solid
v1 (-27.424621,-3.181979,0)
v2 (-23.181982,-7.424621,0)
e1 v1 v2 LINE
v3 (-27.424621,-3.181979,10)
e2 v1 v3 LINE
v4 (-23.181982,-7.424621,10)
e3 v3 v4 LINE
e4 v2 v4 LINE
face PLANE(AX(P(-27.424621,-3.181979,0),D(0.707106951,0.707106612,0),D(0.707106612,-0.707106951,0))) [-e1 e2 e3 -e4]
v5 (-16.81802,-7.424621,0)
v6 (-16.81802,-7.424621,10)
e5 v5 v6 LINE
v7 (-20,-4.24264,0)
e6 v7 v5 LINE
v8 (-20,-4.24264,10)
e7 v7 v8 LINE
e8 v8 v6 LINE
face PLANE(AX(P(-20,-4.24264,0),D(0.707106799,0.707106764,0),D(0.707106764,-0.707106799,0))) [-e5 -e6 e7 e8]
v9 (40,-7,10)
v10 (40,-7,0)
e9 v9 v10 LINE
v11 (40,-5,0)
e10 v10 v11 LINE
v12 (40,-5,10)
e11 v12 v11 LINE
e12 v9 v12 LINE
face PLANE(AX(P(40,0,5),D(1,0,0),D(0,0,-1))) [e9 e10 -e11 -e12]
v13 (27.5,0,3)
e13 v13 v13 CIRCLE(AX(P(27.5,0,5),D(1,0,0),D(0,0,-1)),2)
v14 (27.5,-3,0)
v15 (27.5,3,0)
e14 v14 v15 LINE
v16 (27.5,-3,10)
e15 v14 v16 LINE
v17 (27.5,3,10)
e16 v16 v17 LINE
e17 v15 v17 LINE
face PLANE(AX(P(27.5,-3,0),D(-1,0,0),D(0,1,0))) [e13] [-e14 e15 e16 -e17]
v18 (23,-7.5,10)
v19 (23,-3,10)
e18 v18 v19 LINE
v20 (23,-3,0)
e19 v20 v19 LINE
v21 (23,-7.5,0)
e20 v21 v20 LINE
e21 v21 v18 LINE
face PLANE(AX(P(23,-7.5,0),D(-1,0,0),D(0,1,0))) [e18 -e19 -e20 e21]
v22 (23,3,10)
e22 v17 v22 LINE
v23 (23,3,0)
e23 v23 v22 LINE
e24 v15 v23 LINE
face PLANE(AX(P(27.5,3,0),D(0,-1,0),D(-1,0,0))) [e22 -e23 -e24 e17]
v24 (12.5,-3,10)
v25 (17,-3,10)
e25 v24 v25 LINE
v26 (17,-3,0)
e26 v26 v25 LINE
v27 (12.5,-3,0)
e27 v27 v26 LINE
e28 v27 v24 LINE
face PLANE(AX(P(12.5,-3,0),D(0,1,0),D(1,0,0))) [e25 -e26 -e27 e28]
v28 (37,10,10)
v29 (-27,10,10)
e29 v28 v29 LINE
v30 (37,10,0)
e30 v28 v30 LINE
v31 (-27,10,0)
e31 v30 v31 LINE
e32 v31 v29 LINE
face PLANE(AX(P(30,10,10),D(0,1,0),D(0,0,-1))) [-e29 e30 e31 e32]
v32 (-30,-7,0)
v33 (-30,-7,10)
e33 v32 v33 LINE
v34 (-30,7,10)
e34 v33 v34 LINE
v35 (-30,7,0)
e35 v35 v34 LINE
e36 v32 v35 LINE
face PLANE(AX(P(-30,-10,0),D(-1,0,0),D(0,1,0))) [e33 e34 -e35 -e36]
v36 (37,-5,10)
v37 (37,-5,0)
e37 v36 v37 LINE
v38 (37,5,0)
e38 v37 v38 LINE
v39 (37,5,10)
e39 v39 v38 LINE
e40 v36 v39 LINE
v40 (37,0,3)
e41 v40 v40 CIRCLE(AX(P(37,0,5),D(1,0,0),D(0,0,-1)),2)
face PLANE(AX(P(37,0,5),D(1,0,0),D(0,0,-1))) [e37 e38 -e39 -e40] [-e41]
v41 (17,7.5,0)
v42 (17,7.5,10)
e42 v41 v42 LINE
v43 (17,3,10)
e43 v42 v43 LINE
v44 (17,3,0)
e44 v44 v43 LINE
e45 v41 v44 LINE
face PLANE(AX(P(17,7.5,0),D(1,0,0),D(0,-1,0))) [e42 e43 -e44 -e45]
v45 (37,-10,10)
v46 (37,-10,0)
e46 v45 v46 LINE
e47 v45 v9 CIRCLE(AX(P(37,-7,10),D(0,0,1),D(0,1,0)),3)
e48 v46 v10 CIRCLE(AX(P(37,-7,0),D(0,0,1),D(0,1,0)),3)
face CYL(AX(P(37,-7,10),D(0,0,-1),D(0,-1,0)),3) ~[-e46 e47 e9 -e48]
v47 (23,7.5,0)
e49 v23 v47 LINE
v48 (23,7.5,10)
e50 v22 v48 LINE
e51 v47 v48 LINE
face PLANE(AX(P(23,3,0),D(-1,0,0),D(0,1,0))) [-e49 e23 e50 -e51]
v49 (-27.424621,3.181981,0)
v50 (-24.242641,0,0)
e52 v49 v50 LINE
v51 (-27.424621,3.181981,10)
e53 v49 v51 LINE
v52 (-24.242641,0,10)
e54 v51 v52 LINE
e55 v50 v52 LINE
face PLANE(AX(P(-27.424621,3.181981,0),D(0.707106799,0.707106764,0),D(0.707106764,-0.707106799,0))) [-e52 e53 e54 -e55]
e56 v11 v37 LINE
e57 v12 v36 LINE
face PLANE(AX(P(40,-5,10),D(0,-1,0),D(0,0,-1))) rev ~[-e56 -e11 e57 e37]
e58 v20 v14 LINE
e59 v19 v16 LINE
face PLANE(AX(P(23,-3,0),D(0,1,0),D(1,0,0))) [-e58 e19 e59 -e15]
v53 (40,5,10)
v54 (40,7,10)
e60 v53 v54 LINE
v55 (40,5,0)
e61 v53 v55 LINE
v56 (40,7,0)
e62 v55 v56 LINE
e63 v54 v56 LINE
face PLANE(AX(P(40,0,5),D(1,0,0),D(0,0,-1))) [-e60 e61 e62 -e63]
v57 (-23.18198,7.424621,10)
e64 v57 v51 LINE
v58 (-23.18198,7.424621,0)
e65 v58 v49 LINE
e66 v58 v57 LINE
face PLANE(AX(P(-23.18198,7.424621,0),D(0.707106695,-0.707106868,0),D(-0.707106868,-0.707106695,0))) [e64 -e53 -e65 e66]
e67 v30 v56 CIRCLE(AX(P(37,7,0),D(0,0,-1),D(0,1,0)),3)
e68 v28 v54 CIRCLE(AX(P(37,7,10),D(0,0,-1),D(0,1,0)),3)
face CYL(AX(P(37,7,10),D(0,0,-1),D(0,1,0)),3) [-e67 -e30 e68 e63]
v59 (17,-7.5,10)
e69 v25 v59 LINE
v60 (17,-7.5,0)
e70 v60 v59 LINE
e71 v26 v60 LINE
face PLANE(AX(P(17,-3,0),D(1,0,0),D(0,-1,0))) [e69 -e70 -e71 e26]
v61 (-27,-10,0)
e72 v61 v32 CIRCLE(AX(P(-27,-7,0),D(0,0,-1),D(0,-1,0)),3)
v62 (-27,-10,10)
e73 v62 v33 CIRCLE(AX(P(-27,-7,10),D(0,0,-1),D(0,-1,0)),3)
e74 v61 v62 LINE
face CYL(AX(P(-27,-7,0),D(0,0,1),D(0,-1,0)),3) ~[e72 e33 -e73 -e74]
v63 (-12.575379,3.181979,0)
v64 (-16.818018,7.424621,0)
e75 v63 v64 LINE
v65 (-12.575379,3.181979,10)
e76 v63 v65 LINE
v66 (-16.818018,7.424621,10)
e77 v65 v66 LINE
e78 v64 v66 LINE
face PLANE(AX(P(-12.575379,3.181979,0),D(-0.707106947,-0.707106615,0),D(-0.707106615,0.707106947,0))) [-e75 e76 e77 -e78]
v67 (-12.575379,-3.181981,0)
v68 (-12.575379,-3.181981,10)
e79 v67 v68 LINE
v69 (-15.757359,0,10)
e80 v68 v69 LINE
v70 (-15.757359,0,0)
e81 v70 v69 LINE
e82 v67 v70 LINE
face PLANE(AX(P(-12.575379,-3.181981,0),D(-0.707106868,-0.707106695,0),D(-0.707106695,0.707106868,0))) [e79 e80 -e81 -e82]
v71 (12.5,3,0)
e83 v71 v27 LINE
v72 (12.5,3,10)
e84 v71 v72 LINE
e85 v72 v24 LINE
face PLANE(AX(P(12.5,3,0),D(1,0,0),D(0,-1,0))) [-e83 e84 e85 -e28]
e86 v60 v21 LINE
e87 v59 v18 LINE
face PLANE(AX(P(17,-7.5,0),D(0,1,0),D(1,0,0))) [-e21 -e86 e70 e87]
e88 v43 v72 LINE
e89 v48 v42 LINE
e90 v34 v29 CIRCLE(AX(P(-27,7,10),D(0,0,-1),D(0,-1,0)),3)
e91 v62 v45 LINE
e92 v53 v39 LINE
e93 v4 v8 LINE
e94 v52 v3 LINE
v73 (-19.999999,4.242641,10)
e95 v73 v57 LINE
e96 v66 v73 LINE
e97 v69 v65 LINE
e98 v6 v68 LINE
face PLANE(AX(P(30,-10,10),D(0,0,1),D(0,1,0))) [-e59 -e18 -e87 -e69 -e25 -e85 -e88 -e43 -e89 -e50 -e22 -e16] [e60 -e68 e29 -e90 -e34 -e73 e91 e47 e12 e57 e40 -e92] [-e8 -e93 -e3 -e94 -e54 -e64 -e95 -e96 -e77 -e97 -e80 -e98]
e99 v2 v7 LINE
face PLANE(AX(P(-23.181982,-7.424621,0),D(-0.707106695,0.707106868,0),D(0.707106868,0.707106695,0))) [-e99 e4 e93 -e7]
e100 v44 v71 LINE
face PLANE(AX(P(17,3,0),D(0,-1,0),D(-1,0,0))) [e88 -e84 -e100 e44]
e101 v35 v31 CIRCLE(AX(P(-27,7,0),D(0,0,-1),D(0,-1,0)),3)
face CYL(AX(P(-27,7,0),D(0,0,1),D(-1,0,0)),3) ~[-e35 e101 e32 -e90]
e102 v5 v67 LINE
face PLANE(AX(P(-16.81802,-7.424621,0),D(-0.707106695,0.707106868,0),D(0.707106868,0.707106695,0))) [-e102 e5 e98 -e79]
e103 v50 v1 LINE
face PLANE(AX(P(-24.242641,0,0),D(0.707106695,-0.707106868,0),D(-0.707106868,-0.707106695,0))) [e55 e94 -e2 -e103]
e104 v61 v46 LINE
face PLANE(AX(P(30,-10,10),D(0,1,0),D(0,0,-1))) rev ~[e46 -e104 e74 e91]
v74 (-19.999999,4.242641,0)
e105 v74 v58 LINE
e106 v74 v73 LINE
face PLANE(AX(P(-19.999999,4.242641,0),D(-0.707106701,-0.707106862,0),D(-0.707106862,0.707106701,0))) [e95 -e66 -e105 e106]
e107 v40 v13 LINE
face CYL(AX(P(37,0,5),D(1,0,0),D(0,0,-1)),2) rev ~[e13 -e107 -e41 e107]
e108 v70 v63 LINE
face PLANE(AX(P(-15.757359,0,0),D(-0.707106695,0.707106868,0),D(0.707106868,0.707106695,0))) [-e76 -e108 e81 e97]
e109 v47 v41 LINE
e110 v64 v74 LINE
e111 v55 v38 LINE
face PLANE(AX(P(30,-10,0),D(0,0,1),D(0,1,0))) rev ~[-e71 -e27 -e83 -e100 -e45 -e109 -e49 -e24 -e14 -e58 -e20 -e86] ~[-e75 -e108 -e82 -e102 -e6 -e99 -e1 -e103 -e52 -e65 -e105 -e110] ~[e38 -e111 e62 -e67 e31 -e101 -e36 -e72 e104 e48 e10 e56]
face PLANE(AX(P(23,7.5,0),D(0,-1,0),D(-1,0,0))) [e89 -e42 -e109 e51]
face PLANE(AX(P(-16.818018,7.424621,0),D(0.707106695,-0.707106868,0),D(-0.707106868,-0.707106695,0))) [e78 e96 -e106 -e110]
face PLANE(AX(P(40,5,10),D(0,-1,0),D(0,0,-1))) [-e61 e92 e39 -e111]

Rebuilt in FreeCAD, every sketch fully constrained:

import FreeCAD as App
import Part
import Sketcher

V = App.Vector
Q = App.Units.Quantity


def edges_at(feature, points):
    """Names of the edges that pass closest to the given points."""
    edges = feature.Shape.Edges
    near = lambda p: min(range(len(edges)), key=lambda i: edges[i].distToShape(Part.Vertex(*p))[0])
    return sorted({f"Edge{near(p) + 1}" for p in points})

doc = App.newDocument("Part")
params = doc.addObject("Spreadsheet::Sheet", "Params")
for row, (alias, value) in enumerate([
    ("sketch1_width", "60 mm"),
    ("sketch1_width2", "6 mm"),
    ("sketch1_height", "20 mm"),
    ("sketch1_length", "6 mm"),
    ("sketch1_width3", "4.5 mm"),
    ("pad1_length", "10 mm"),
    ("sketch2_width", "20 mm"),
    ("sketch2_height", "10 mm"),
    ("pad2_length", "10 mm"),
    ("sketch3_width", "10 mm"),
    ("pocket1_length", "3 mm"),
    ("sketch4_diameter", "4 mm"),
    ("pocket2_length", "14 mm"),
    ("fillet_radius", "3 mm"),
], start=1):
    params.set(f"A{row}", alias)
    params.set(f"B{row}", "=" + value)
    params.setAlias(f"B{row}", alias)

body = doc.addObject("PartDesign::Body", "Body")

# Sketch on XY plane
sketch1 = body.newObject("Sketcher::SketchObject", "Sketch")
sketch1.AttachmentSupport = (doc.getObject("XY_Plane"), [""])
sketch1.MapMode = "FlatFace"
sketch1.addGeometry(Part.LineSegment(V(-30, 10, 0), V(-30, -10, 0)), False)
sketch1.addGeometry(Part.LineSegment(V(-30, -10, 0), V(30, -10, 0)), False)
sketch1.addGeometry(Part.LineSegment(V(30, -10, 0), V(30, 10, 0)), False)
sketch1.addGeometry(Part.LineSegment(V(30, 10, 0), V(-30, 10, 0)), False)
sketch1.addGeometry(Part.LineSegment(V(-27.424621, 3.181981, 0), V(-23.18198, 7.424621, 0)), False)
sketch1.addGeometry(Part.LineSegment(V(-23.18198, 7.424621, 0), V(-19.999999, 4.242641, 0)), False)
sketch1.addGeometry(Part.LineSegment(V(-19.999999, 4.242641, 0), V(-16.818018, 7.424621, 0)), False)
sketch1.addGeometry(Part.LineSegment(V(-16.818018, 7.424621, 0), V(-12.575379, 3.181979, 0)), False)
sketch1.addGeometry(Part.LineSegment(V(-12.575379, 3.181979, 0), V(-15.757359, 0, 0)), False)
sketch1.addGeometry(Part.LineSegment(V(-15.757359, 0, 0), V(-12.575379, -3.181981, 0)), False)
sketch1.addGeometry(Part.LineSegment(V(-12.575379, -3.181981, 0), V(-16.81802, -7.424621, 0)), False)
sketch1.addGeometry(Part.LineSegment(V(-16.81802, -7.424621, 0), V(-20, -4.24264, 0)), False)
sketch1.addGeometry(Part.LineSegment(V(-20, -4.24264, 0), V(-23.181982, -7.424621, 0)), False)
sketch1.addGeometry(Part.LineSegment(V(-23.181982, -7.424621, 0), V(-27.424621, -3.181979, 0)), False)
sketch1.addGeometry(Part.LineSegment(V(-27.424621, -3.181979, 0), V(-24.242641, 0, 0)), False)
sketch1.addGeometry(Part.LineSegment(V(-24.242641, 0, 0), V(-27.424621, 3.181981, 0)), False)
sketch1.addGeometry(Part.LineSegment(V(17, 7.5, 0), V(23, 7.5, 0)), False)
sketch1.addGeometry(Part.LineSegment(V(23, 7.5, 0), V(23, 3, 0)), False)
sketch1.addGeometry(Part.LineSegment(V(23, 3, 0), V(27.5, 3, 0)), False)
sketch1.addGeometry(Part.LineSegment(V(27.5, 3, 0), V(27.5, -3, 0)), False)
sketch1.addGeometry(Part.LineSegment(V(27.5, -3, 0), V(23, -3, 0)), False)
sketch1.addGeometry(Part.LineSegment(V(23, -3, 0), V(23, -7.5, 0)), False)
sketch1.addGeometry(Part.LineSegment(V(23, -7.5, 0), V(17, -7.5, 0)), False)
sketch1.addGeometry(Part.LineSegment(V(17, -7.5, 0), V(17, -3, 0)), False)
sketch1.addGeometry(Part.LineSegment(V(17, -3, 0), V(12.5, -3, 0)), False)
sketch1.addGeometry(Part.LineSegment(V(12.5, -3, 0), V(12.5, 3, 0)), False)
sketch1.addGeometry(Part.LineSegment(V(12.5, 3, 0), V(17, 3, 0)), False)
sketch1.addGeometry(Part.LineSegment(V(17, 3, 0), V(17, 7.5, 0)), False)
sketch1.addConstraint(Sketcher.Constraint("Coincident", 0, 2, 1, 1))
sketch1.addConstraint(Sketcher.Constraint("Coincident", 1, 2, 2, 1))
sketch1.addConstraint(Sketcher.Constraint("Coincident", 2, 2, 3, 1))
sketch1.addConstraint(Sketcher.Constraint("Coincident", 3, 2, 0, 1))
sketch1.addConstraint(Sketcher.Constraint("Coincident", 4, 2, 5, 1))
sketch1.addConstraint(Sketcher.Constraint("Coincident", 5, 2, 6, 1))
sketch1.addConstraint(Sketcher.Constraint("Coincident", 6, 2, 7, 1))
sketch1.addConstraint(Sketcher.Constraint("Coincident", 7, 2, 8, 1))
sketch1.addConstraint(Sketcher.Constraint("Coincident", 8, 2, 9, 1))
sketch1.addConstraint(Sketcher.Constraint("Coincident", 9, 2, 10, 1))
sketch1.addConstraint(Sketcher.Constraint("Coincident", 10, 2, 11, 1))
sketch1.addConstraint(Sketcher.Constraint("Coincident", 11, 2, 12, 1))
sketch1.addConstraint(Sketcher.Constraint("Coincident", 12, 2, 13, 1))
sketch1.addConstraint(Sketcher.Constraint("Coincident", 13, 2, 14, 1))
sketch1.addConstraint(Sketcher.Constraint("Coincident", 14, 2, 15, 1))
sketch1.addConstraint(Sketcher.Constraint("Coincident", 15, 2, 4, 1))
sketch1.addConstraint(Sketcher.Constraint("Coincident", 16, 2, 17, 1))
sketch1.addConstraint(Sketcher.Constraint("Coincident", 17, 2, 18, 1))
sketch1.addConstraint(Sketcher.Constraint("Coincident", 18, 2, 19, 1))
sketch1.addConstraint(Sketcher.Constraint("Coincident", 19, 2, 20, 1))
sketch1.addConstraint(Sketcher.Constraint("Coincident", 20, 2, 21, 1))
sketch1.addConstraint(Sketcher.Constraint("Coincident", 21, 2, 22, 1))
sketch1.addConstraint(Sketcher.Constraint("Coincident", 22, 2, 23, 1))
sketch1.addConstraint(Sketcher.Constraint("Coincident", 23, 2, 24, 1))
sketch1.addConstraint(Sketcher.Constraint("Coincident", 24, 2, 25, 1))
sketch1.addConstraint(Sketcher.Constraint("Coincident", 25, 2, 26, 1))
sketch1.addConstraint(Sketcher.Constraint("Coincident", 26, 2, 27, 1))
sketch1.addConstraint(Sketcher.Constraint("Coincident", 27, 2, 16, 1))
sketch1.addConstraint(Sketcher.Constraint("Vertical", 0))
sketch1.addConstraint(Sketcher.Constraint("Horizontal", 1))
sketch1.addConstraint(Sketcher.Constraint("Vertical", 2))
sketch1.addConstraint(Sketcher.Constraint("Horizontal", 3))
sketch1.addConstraint(Sketcher.Constraint("Horizontal", 16))
sketch1.addConstraint(Sketcher.Constraint("Vertical", 17))
sketch1.addConstraint(Sketcher.Constraint("Horizontal", 18))
sketch1.addConstraint(Sketcher.Constraint("Vertical", 19))
sketch1.addConstraint(Sketcher.Constraint("Horizontal", 20))
sketch1.addConstraint(Sketcher.Constraint("Vertical", 21))
sketch1.addConstraint(Sketcher.Constraint("Horizontal", 22))
sketch1.addConstraint(Sketcher.Constraint("Vertical", 23))
sketch1.addConstraint(Sketcher.Constraint("Horizontal", 24))
sketch1.addConstraint(Sketcher.Constraint("Vertical", 25))
sketch1.addConstraint(Sketcher.Constraint("Horizontal", 26))
sketch1.addConstraint(Sketcher.Constraint("Vertical", 27))
sketch1.addConstraint(Sketcher.Constraint("Symmetric", 0, 2, 2, 2, -1, 1))
sketch1.addConstraint(Sketcher.Constraint("Symmetric", 7, 2, 9, 2, -1))
sketch1.addConstraint(Sketcher.Constraint("Symmetric", 6, 2, 10, 2, -1))
sketch1.addConstraint(Sketcher.Constraint("Symmetric", 5, 2, 11, 2, -1))
sketch1.addConstraint(Sketcher.Constraint("Symmetric", 4, 2, 12, 2, -1))
sketch1.addConstraint(Sketcher.Constraint("Symmetric", 13, 2, 15, 2, -1))
sketch1.addConstraint(Sketcher.Constraint("Symmetric", 17, 2, 20, 2, -1))
sketch1.addConstraint(Sketcher.Constraint("Symmetric", 23, 2, 26, 2, -1))
sketch1.addConstraint(Sketcher.Constraint("PointOnObject", 8, 2, -1))
sketch1.addConstraint(Sketcher.Constraint("PointOnObject", 14, 2, -1))
sketch1.addConstraint(Sketcher.Constraint("Perpendicular", 4, 5))
sketch1.addConstraint(Sketcher.Constraint("Perpendicular", 5, 6))
sketch1.addConstraint(Sketcher.Constraint("Perpendicular", 6, 7))
sketch1.addConstraint(Sketcher.Constraint("Perpendicular", 7, 8))
sketch1.addConstraint(Sketcher.Constraint("Perpendicular", 8, 9))
sketch1.addConstraint(Sketcher.Constraint("Perpendicular", 13, 14))
sketch1.addConstraint(Sketcher.Constraint("Horizontal", 4, 2, 6, 2))
sketch1.addConstraint(Sketcher.Constraint("Horizontal", 9, 2, 13, 2))
sketch1.addConstraint(Sketcher.Constraint("Horizontal", 20, 2, 23, 2))
sketch1.addConstraint(Sketcher.Constraint("Equal", 20, 24))
sketch1.addConstraint(Sketcher.Constraint("Equal", 26, 17))
sketch1.addConstraint(Sketcher.Constraint("Equal", 22, 19))
sketch1.addConstraint(Sketcher.Constraint("Equal", 17, 21))
sketch1.addConstraint(Sketcher.Constraint("Equal", 6, 8))
sketch1.addConstraint(Sketcher.Constraint("DistanceX", 1, 1, 1, 2, Q("60 mm")))
sketch1.addConstraint(Sketcher.Constraint("DistanceX", 16, 1, 16, 2, Q("6 mm")))
sketch1.addConstraint(Sketcher.Constraint("DistanceY", 0, 2, 0, 1, Q("20 mm")))
sketch1.addConstraint(Sketcher.Constraint("Distance", 4, Q("6 mm")))
sketch1.addConstraint(Sketcher.Constraint("DistanceX", 18, 1, 18, 2, Q("4.5 mm")))
sketch1.addConstraint(Sketcher.Constraint("DistanceX", 5, 2, -1, 1, Q("19.999999 mm")))
sketch1.addConstraint(Sketcher.Constraint("DistanceX", -1, 1, 16, 2, Q("23 mm")))
sketch1.addConstraint(Sketcher.Constraint("Distance", 5, Q("4.5 mm")))
sketch1.setExpression("Constraints[68]", "Params.sketch1_width")
sketch1.setExpression("Constraints[69]", "Params.sketch1_width2")
sketch1.setExpression("Constraints[70]", "Params.sketch1_height")
sketch1.setExpression("Constraints[71]", "Params.sketch1_length")
sketch1.setExpression("Constraints[72]", "Params.sketch1_width3")
pad1 = body.newObject("PartDesign::Pad", "Pad")
pad1.Profile = sketch1
pad1.setExpression("Length", "Params.pad1_length")

# Sketch on YZ plane
sketch2 = body.newObject("Sketcher::SketchObject", "Sketch001")
sketch2.AttachmentSupport = (doc.getObject("YZ_Plane"), [""])
sketch2.MapMode = "FlatFace"
sketch2.AttachmentOffset = App.Placement(V(0, 0, 30), App.Rotation())
sketch2.addGeometry(Part.LineSegment(V(10, 10, 0), V(-10, 10, 0)), False)
sketch2.addGeometry(Part.LineSegment(V(-10, 10, 0), V(-10, 0, 0)), False)
sketch2.addGeometry(Part.LineSegment(V(-10, 0, 0), V(10, 0, 0)), False)
sketch2.addGeometry(Part.LineSegment(V(10, 0, 0), V(10, 10, 0)), False)
sketch2.addConstraint(Sketcher.Constraint("Coincident", 0, 2, 1, 1))
sketch2.addConstraint(Sketcher.Constraint("Coincident", 1, 2, 2, 1))
sketch2.addConstraint(Sketcher.Constraint("Coincident", 2, 2, 3, 1))
sketch2.addConstraint(Sketcher.Constraint("Coincident", 3, 2, 0, 1))
sketch2.addConstraint(Sketcher.Constraint("Horizontal", 0))
sketch2.addConstraint(Sketcher.Constraint("Vertical", 1))
sketch2.addConstraint(Sketcher.Constraint("Horizontal", 2))
sketch2.addConstraint(Sketcher.Constraint("Vertical", 3))
sketch2.addConstraint(Sketcher.Constraint("Symmetric", 1, 2, 2, 2, -1, 1))
sketch2.addConstraint(Sketcher.Constraint("DistanceX", 0, 2, 0, 1, Q("20 mm")))
sketch2.addConstraint(Sketcher.Constraint("DistanceY", 1, 2, 1, 1, Q("10 mm")))
sketch2.setExpression("Constraints[9]", "Params.sketch2_width")
sketch2.setExpression("Constraints[10]", "Params.sketch2_height")
pad2 = body.newObject("PartDesign::Pad", "Pad001")
pad2.Profile = sketch2
pad2.setExpression("Length", "Params.pad2_length")

# Sketch on YZ plane
sketch3 = body.newObject("Sketcher::SketchObject", "Sketch002")
sketch3.AttachmentSupport = (doc.getObject("YZ_Plane"), [""])
sketch3.MapMode = "FlatFace"
sketch3.AttachmentOffset = App.Placement(V(0, 0, 40), App.Rotation())
sketch3.addGeometry(Part.LineSegment(V(5, 10, 0), V(-5, 10, 0)), False)
sketch3.addGeometry(Part.LineSegment(V(-5, 10, 0), V(-5, 0, 0)), False)
sketch3.addGeometry(Part.LineSegment(V(-5, 0, 0), V(5, 0, 0)), False)
sketch3.addGeometry(Part.LineSegment(V(5, 0, 0), V(5, 10, 0)), False)
sketch3.addConstraint(Sketcher.Constraint("Coincident", 0, 2, 1, 1))
sketch3.addConstraint(Sketcher.Constraint("Coincident", 1, 2, 2, 1))
sketch3.addConstraint(Sketcher.Constraint("Coincident", 2, 2, 3, 1))
sketch3.addConstraint(Sketcher.Constraint("Coincident", 3, 2, 0, 1))
sketch3.addConstraint(Sketcher.Constraint("Horizontal", 0))
sketch3.addConstraint(Sketcher.Constraint("Vertical", 1))
sketch3.addConstraint(Sketcher.Constraint("Horizontal", 2))
sketch3.addConstraint(Sketcher.Constraint("Vertical", 3))
sketch3.addConstraint(Sketcher.Constraint("Symmetric", 1, 2, 2, 2, -1, 1))
sketch3.addConstraint(Sketcher.Constraint("Equal", 2, 1))
sketch3.addConstraint(Sketcher.Constraint("DistanceX", 0, 2, 0, 1, Q("10 mm")))
sketch3.setExpression("Constraints[10]", "Params.sketch3_width")
pocket1 = body.newObject("PartDesign::Pocket", "Pocket")
pocket1.Profile = sketch3
pocket1.setExpression("Length", "Params.pocket1_length")

# Sketch on YZ plane
sketch4 = body.newObject("Sketcher::SketchObject", "Sketch003")
sketch4.AttachmentSupport = (doc.getObject("YZ_Plane"), [""])
sketch4.MapMode = "FlatFace"
sketch4.AttachmentOffset = App.Placement(V(0, 0, 37), App.Rotation())
sketch4.addGeometry(Part.Circle(V(0, 5, 0), V(0, 0, 1), 2), False)
sketch4.addConstraint(Sketcher.Constraint("PointOnObject", 0, 3, -2))
sketch4.addConstraint(Sketcher.Constraint("Diameter", 0, Q("4 mm")))
sketch4.addConstraint(Sketcher.Constraint("DistanceY", -1, 1, 0, 3, Q("5 mm")))
sketch4.setExpression("Constraints[1]", "Params.sketch4_diameter")
pocket2 = body.newObject("PartDesign::Pocket", "Pocket001")
pocket2.Profile = sketch4
pocket2.setExpression("Length", "Params.pocket2_length")
doc.recompute()

fillet = body.newObject("PartDesign::Fillet", "Fillet")
fillet.Base = (pocket2, edges_at(pocket2, [
    (-30, 10, 5),
    (-30, -10, 5),
    (40, 10, 5),
    (40, -10, 5),
]))
fillet.setExpression("Radius", "Params.fillet_radius")

doc.recompute()
